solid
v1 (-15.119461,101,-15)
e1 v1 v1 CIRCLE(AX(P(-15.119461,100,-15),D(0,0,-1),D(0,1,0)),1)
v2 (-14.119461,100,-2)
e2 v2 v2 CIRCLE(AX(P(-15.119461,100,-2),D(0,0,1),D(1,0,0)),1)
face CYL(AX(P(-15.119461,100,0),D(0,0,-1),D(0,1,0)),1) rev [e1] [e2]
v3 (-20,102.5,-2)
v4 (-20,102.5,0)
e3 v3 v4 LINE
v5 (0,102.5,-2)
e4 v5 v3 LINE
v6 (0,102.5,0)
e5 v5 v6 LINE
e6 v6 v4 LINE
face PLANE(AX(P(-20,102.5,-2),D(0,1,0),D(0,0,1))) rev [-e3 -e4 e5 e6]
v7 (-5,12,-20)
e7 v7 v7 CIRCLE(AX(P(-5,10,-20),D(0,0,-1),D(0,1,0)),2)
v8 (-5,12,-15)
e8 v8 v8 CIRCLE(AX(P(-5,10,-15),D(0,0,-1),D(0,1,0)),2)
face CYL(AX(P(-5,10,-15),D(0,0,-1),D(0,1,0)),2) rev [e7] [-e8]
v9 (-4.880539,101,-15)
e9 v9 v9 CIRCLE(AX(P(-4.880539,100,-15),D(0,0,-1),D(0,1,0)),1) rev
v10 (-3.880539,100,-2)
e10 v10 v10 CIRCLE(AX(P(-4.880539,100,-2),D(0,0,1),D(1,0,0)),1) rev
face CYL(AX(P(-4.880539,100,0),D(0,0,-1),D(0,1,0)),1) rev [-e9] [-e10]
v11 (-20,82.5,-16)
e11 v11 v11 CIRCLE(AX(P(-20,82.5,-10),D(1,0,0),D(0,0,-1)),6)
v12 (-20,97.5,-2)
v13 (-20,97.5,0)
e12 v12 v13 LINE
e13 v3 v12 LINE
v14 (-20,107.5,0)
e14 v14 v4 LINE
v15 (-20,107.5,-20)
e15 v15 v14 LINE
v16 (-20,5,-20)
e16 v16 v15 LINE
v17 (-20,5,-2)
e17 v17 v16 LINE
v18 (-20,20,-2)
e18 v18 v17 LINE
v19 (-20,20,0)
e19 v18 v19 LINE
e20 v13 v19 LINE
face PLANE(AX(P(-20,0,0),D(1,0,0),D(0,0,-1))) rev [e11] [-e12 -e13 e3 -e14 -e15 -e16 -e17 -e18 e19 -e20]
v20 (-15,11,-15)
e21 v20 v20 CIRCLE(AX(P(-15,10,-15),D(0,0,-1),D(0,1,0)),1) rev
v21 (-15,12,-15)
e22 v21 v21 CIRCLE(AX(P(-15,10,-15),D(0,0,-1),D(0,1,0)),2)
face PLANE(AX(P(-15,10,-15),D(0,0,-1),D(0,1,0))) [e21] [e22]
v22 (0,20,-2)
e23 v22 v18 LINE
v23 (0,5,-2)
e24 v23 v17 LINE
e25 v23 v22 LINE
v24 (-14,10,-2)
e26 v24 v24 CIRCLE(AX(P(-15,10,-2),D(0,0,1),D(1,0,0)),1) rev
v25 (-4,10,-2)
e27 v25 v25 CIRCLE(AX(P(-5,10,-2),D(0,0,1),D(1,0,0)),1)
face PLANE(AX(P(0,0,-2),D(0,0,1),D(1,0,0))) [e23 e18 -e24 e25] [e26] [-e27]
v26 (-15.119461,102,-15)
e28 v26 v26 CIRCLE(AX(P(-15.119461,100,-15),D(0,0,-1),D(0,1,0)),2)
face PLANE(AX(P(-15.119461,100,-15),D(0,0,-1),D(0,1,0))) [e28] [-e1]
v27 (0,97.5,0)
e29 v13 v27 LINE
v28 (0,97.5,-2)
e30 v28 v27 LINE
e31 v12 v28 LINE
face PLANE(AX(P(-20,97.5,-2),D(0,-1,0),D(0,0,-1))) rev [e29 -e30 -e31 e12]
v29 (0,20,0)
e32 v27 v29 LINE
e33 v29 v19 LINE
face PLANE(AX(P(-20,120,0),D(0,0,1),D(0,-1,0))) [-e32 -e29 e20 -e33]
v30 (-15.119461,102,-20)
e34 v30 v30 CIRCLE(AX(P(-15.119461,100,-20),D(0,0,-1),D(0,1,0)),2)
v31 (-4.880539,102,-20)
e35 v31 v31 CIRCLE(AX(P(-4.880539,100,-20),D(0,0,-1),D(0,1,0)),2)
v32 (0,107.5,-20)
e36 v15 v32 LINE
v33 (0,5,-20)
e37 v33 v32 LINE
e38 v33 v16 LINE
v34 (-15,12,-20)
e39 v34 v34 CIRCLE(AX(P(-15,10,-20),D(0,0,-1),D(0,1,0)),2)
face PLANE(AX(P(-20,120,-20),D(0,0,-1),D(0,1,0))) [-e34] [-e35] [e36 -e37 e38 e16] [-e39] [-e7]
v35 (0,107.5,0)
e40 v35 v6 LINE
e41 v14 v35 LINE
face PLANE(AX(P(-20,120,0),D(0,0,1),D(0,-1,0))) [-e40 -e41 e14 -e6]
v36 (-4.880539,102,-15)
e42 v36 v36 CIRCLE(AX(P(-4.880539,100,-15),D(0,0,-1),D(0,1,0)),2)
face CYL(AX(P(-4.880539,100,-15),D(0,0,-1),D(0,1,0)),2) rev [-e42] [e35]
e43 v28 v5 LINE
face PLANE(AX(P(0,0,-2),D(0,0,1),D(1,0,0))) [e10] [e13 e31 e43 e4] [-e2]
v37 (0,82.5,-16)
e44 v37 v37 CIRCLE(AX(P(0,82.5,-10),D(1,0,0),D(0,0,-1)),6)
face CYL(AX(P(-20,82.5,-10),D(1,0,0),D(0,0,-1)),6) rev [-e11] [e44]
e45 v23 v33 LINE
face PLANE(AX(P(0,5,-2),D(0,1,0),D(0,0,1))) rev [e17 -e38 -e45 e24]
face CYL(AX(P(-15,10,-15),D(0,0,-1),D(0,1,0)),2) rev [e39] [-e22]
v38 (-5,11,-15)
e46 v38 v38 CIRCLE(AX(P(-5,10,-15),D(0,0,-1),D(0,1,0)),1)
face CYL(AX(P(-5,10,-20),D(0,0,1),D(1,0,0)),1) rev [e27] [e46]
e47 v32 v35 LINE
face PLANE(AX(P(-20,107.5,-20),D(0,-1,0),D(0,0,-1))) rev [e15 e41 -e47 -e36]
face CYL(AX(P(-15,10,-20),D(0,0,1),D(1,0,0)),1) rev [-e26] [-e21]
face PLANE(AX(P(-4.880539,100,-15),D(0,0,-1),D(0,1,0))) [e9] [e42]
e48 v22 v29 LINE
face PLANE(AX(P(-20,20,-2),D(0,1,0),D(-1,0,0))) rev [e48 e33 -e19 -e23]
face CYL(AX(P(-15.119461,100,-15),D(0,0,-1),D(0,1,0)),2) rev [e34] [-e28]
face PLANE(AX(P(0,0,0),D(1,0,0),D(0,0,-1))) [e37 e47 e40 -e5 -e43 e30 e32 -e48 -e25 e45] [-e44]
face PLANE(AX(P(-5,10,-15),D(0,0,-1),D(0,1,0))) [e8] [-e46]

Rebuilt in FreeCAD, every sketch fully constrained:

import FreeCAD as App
import Part
import Sketcher
from FreeCAD import Vector


def add_polygon(sketch, points):
    """Adds a closed chain of lines whose ends are joined by coincident constraints."""
    first, n = sketch.GeometryCount, len(points)
    for a, b in zip(points, points[1:] + points[:1]):
        sketch.addGeometry(Part.LineSegment(App.Vector(*a, 0), App.Vector(*b, 0)), False)
    for i in range(n):
        sketch.addConstraint(Sketcher.Constraint("Coincident", first + i, 2, first + (i + 1) % n, 1))

doc = App.newDocument("Part")
body = doc.addObject("PartDesign::Body", "Body")

# Sketch on YZ plane
sketch1 = doc.addObject("Sketcher::SketchObject", "Sketch")
body.addObject(sketch1)
sketch1.AttachmentSupport = (doc.YZ_Plane, [""])
sketch1.MapMode = "FlatFace"
add_polygon(sketch1, [(120, 0), (0, 0), (0, -20), (120, -20)])  # lines 0-3
sketch1.addGeometry(Part.Circle(Vector(82.5, -10, 0), Vector(0, 0, 1), 2.5), False)  # 4
sketch1.addConstraint(Sketcher.Constraint("Horizontal", 0))
sketch1.addConstraint(Sketcher.Constraint("Vertical", 1))
sketch1.addConstraint(Sketcher.Constraint("Horizontal", 2))
sketch1.addConstraint(Sketcher.Constraint("Vertical", 3))
sketch1.addConstraint(Sketcher.Constraint("Coincident", 0, 2, -1, 1))
sketch1.addConstraint(Sketcher.Constraint("Diameter", 4, 5.0))
sketch1.addConstraint(Sketcher.Constraint("DistanceX", 0, 2, 0, 1, 120.0))
sketch1.addConstraint(Sketcher.Constraint("DistanceY", 1, 2, 1, 1, 20.0))
sketch1.addConstraint(Sketcher.Constraint("DistanceY", 4, 3, -1, 1, 10.0))
sketch1.addConstraint(Sketcher.Constraint("DistanceX", -1, 1, 4, 3, 82.5))
pad1 = doc.addObject("PartDesign::Pad", "Pad")
body.addObject(pad1)
pad1.Profile = sketch1
pad1.Length = 20
pad1.Reversed = True

# Sketch on YZ plane
sketch2 = doc.addObject("Sketcher::SketchObject", "Sketch001")
body.addObject(sketch2)
sketch2.AttachmentSupport = (doc.YZ_Plane, [""])
sketch2.MapMode = "FlatFace"
sketch2.addGeometry(Part.Circle(Vector(82, -10, 0), Vector(0, 0, 1), 6), False)
sketch2.addConstraint(Sketcher.Constraint("Diameter", 0, 12.0))
sketch2.addConstraint(Sketcher.Constraint("DistanceY", 0, 3, -1, 1, 10.0))
sketch2.addConstraint(Sketcher.Constraint("DistanceX", -1, 1, 0, 3, 82.5))
pocket1 = doc.addObject("PartDesign::Pocket", "Pocket")
body.addObject(pocket1)
pocket1.Profile = sketch2
pocket1.Type = "ThroughAll"

# Sketch on XY plane
sketch3 = doc.addObject("Sketcher::SketchObject", "Sketch002")
body.addObject(sketch3)
sketch3.AttachmentSupport = (doc.XY_Plane, [""])
sketch3.MapMode = "FlatFace"
sketch3.addGeometry(Part.Circle(Vector(-15, 10, 0), Vector(0, 0, 1), 1), False)
sketch3.addGeometry(Part.Circle(Vector(-5, 10, 0), Vector(0, 0, 1), 1), False)
sketch3.addConstraint(Sketcher.Constraint("Equal", 0, 1))
sketch3.addConstraint(Sketcher.Constraint("Horizontal", 0, 3, 1, 3))
sketch3.addConstraint(Sketcher.Constraint("Diameter", 0, 2.0))
sketch3.addConstraint(Sketcher.Constraint("DistanceX", 0, 3, -1, 1, 15.0))
sketch3.addConstraint(Sketcher.Constraint("DistanceY", -1, 1, 0, 3, 10.0))
sketch3.addConstraint(Sketcher.Constraint("DistanceX", 1, 3, -1, 1, 5.0))
pocket2 = doc.addObject("PartDesign::Pocket", "Pocket001")
body.addObject(pocket2)
pocket2.Profile = sketch3
pocket2.Type = "ThroughAll"

# Sketch on XY plane
sketch4 = doc.addObject("Sketcher::SketchObject", "Sketch003")
body.addObject(sketch4)
sketch4.AttachmentSupport = (doc.XY_Plane, [""])
sketch4.MapMode = "FlatFace"
sketch4.AttachmentOffset = App.Placement(Vector(0, 0, -20), App.Rotation())
sketch4.addGeometry(Part.Circle(Vector(-5, 10, 0), Vector(0, 0, 1), 2), False)
sketch4.addGeometry(Part.Circle(Vector(-15, 10, 0), Vector(0, 0, 1), 2), False)
sketch4.addConstraint(Sketcher.Constraint("Equal", 0, 1))
sketch4.addConstraint(Sketcher.Constraint("Horizontal", 0, 3, 1, 3))
sketch4.addConstraint(Sketcher.Constraint("Diameter", 0, 4.0))
sketch4.addConstraint(Sketcher.Constraint("DistanceX", 0, 3, -1, 1, 5.0))
sketch4.addConstraint(Sketcher.Constraint("DistanceY", -1, 1, 0, 3, 10.0))
sketch4.addConstraint(Sketcher.Constraint("DistanceX", 1, 3, -1, 1, 15.0))
pocket3 = doc.addObject("PartDesign::Pocket", "Pocket002")
body.addObject(pocket3)
pocket3.Profile = sketch4
pocket3.Length = 5
pocket3.Reversed = True

# Sketch on XY plane
sketch5 = doc.addObject("Sketcher::SketchObject", "Sketch004")
body.addObject(sketch5)
sketch5.AttachmentSupport = (doc.XY_Plane, [""])
sketch5.MapMode = "FlatFace"
sketch5.AttachmentOffset = App.Placement(Vector(0, 0, -20), App.Rotation())
sketch5.addGeometry(Part.Circle(Vector(-4.9, 100, 0), Vector(0, 0, 1), 1), False)
sketch5.addGeometry(Part.Circle(Vector(-15.1, 100, 0), Vector(0, 0, 1), 1), False)
sketch5.addConstraint(Sketcher.Constraint("Equal", 0, 1))
sketch5.addConstraint(Sketcher.Constraint("Horizontal", 0, 3, 1, 3))
sketch5.addConstraint(Sketcher.Constraint("Diameter", 0, 2.0))
sketch5.addConstraint(Sketcher.Constraint("DistanceY", -1, 1, 0, 3, 100.0))
sketch5.addConstraint(Sketcher.Constraint("DistanceX", 0, 3, -1, 1, 4.880539))
sketch5.addConstraint(Sketcher.Constraint("DistanceX", 1, 3, -1, 1, 15.119461))
pocket4 = doc.addObject("PartDesign::Pocket", "Pocket003")
body.addObject(pocket4)
pocket4.Profile = sketch5
pocket4.Type = "ThroughAll"
pocket4.Reversed = True

# Sketch on XY plane
sketch6 = doc.addObject("Sketcher::SketchObject", "Sketch005")
body.addObject(sketch6)
sketch6.AttachmentSupport = (doc.XY_Plane, [""])
sketch6.MapMode = "FlatFace"
sketch6.AttachmentOffset = App.Placement(Vector(0, 0, -20), App.Rotation())
sketch6.addGeometry(Part.Circle(Vector(-4.9, 100, 0), Vector(0, 0, 1), 2), False)
sketch6.addGeometry(Part.Circle(Vector(-15.1, 100, 0), Vector(0, 0, 1), 2), False)
sketch6.addConstraint(Sketcher.Constraint("Equal", 0, 1))
sketch6.addConstraint(Sketcher.Constraint("Horizontal", 0, 3, 1, 3))
sketch6.addConstraint(Sketcher.Constraint("Diameter", 0, 4.0))
sketch6.addConstraint(Sketcher.Constraint("DistanceY", -1, 1, 0, 3, 100.0))
sketch6.addConstraint(Sketcher.Constraint("DistanceX", 0, 3, -1, 1, 4.880539))
sketch6.addConstraint(Sketcher.Constraint("DistanceX", 1, 3, -1, 1, 15.119461))
pocket5 = doc.addObject("PartDesign::Pocket", "Pocket004")
body.addObject(pocket5)
pocket5.Profile = sketch6
pocket5.Length = 5
pocket5.Reversed = True

# Sketch on XY plane
sketch7 = doc.addObject("Sketcher::SketchObject", "Sketch006")
body.addObject(sketch7)
sketch7.AttachmentSupport = (doc.XY_Plane, [""])
sketch7.MapMode = "FlatFace"
add_polygon(sketch7, [(-20, 102), (-20, 98), (0, 98), (0, 102)])  # lines 0-3
add_polygon(sketch7, [(-20, 20), (-20, 0), (0, 0), (0, 20)])  # lines 4-7
sketch7.addConstraint(Sketcher.Constraint("Vertical", 0))
sketch7.addConstraint(Sketcher.Constraint("Horizontal", 1))
sketch7.addConstraint(Sketcher.Constraint("Vertical", 2))
sketch7.addConstraint(Sketcher.Constraint("Horizontal", 3))
sketch7.addConstraint(Sketcher.Constraint("Vertical", 4))
sketch7.addConstraint(Sketcher.Constraint("Horizontal", 5))
sketch7.addConstraint(Sketcher.Constraint("Vertical", 6))
sketch7.addConstraint(Sketcher.Constraint("Horizontal", 7))
sketch7.addConstraint(Sketcher.Constraint("Coincident", 5, 2, -1, 1))
sketch7.addConstraint(Sketcher.Constraint("PointOnObject", 1, 2, -2))
sketch7.addConstraint(Sketcher.Constraint("Vertical", 3, 2, 4, 2))
sketch7.addConstraint(Sketcher.Constraint("Equal", 7, 4))
sketch7.addConstraint(Sketcher.Constraint("DistanceX", 1, 1, 1, 2, 20.0))
sketch7.addConstraint(Sketcher.Constraint("DistanceY", 0, 2, 0, 1, 5.0))
sketch7.addConstraint(Sketcher.Constraint("DistanceY", -1, 1, 0, 2, 97.5))
pocket6 = doc.addObject("PartDesign::Pocket", "Pocket005")
body.addObject(pocket6)
pocket6.Profile = sketch7
pocket6.Length = 2

# Sketch on YZ plane
sketch8 = doc.addObject("Sketcher::SketchObject", "Sketch007")
body.addObject(sketch8)
sketch8.AttachmentSupport = (doc.YZ_Plane, [""])
sketch8.MapMode = "FlatFace"
sketch8.AttachmentOffset = App.Placement(Vector(0, 0, -20), App.Rotation())
add_polygon(sketch8, [(5, -20), (0, -20), (0, -2), (5, -2)])  # lines 0-3
sketch8.addConstraint(Sketcher.Constraint("Horizontal", 0))
sketch8.addConstraint(Sketcher.Constraint("Vertical", 1))
sketch8.addConstraint(Sketcher.Constraint("Horizontal", 2))
sketch8.addConstraint(Sketcher.Constraint("Vertical", 3))
sketch8.addConstraint(Sketcher.Constraint("PointOnObject", 0, 2, -2))
sketch8.addConstraint(Sketcher.Constraint("DistanceX", 0, 2, 0, 1, 5.0))
sketch8.addConstraint(Sketcher.Constraint("DistanceY", 1, 1, 1, 2, 18.0))
sketch8.addConstraint(Sketcher.Constraint("DistanceY", 0, 2, -1, 1, 20.0))
pocket7 = doc.addObject("PartDesign::Pocket", "Pocket006")
body.addObject(pocket7)
pocket7.Profile = sketch8
pocket7.Type = "ThroughAll"
pocket7.Reversed = True

# Sketch on XY plane
sketch9 = doc.addObject("Sketcher::SketchObject", "Sketch008")
body.addObject(sketch9)
sketch9.AttachmentSupport = (doc.XY_Plane, [""])
sketch9.MapMode = "FlatFace"
add_polygon(sketch9, [(-20, 120), (-20, 108), (0, 108), (0, 120)])  # lines 0-3
sketch9.addConstraint(Sketcher.Constraint("Vertical", 0))
sketch9.addConstraint(Sketcher.Constraint("Horizontal", 1))
sketch9.addConstraint(Sketcher.Constraint("Vertical", 2))
sketch9.addConstraint(Sketcher.Constraint("Horizontal", 3))
sketch9.addConstraint(Sketcher.Constraint("PointOnObject", 1, 2, -2))
sketch9.addConstraint(Sketcher.Constraint("DistanceX", 1, 1, 1, 2, 20.0))
sketch9.addConstraint(Sketcher.Constraint("DistanceY", 0, 2, 0, 1, 12.5))
sketch9.addConstraint(Sketcher.Constraint("DistanceY", -1, 1, 2, 2, 120.0))
pocket8 = doc.addObject("PartDesign::Pocket", "Pocket007")
body.addObject(pocket8)
pocket8.Profile = sketch9
pocket8.Type = "ThroughAll"

doc.recompute()
